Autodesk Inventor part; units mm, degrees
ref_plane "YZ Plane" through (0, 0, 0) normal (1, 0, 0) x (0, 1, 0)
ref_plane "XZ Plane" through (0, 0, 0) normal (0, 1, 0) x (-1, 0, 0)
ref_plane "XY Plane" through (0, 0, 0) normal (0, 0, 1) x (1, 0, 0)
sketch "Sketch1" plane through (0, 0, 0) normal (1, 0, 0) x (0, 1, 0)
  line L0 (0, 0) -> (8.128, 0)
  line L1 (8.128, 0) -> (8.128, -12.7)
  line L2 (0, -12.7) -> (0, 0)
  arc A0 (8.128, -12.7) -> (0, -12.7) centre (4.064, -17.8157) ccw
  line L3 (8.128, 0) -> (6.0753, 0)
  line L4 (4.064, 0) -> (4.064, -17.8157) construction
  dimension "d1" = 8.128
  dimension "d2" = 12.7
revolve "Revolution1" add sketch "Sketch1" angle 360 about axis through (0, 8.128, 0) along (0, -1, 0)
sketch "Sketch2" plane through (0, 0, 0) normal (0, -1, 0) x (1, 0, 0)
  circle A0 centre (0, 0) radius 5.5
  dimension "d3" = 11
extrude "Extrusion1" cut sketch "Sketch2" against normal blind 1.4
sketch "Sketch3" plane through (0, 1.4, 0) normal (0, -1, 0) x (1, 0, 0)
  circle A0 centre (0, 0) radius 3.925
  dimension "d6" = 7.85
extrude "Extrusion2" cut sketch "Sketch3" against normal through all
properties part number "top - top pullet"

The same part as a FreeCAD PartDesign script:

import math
import FreeCAD as App
import Part
import Sketcher
from FreeCAD import Vector

doc = App.newDocument("Part")
body = doc.addObject("PartDesign::Body", "Body")

# Sketch on YZ plane
sketch1 = doc.addObject("Sketcher::SketchObject", "Sketch")
body.addObject(sketch1)
sketch1.AttachmentSupport = (doc.YZ_Plane, [""])
sketch1.MapMode = "FlatFace"
sketch1.addGeometry([
    Part.LineSegment(Vector(8, 0, 0), Vector(0, 0, 0)),
    Part.LineSegment(Vector(0, 0, 0), Vector(0, -13, 0)),
    Part.ArcOfCircle(Part.Circle(Vector(4, -18, 0), Vector(0, 0, 1), 7), math.radians(52), math.radians(128)),
    Part.LineSegment(Vector(8, -13, 0), Vector(8, 0, 0)),
], False)
sketch1.addConstraint([
    Sketcher.Constraint("Coincident", 0, 2, 1, 1),
    Sketcher.Constraint("Coincident", 1, 2, 2, 2),
    Sketcher.Constraint("Coincident", 2, 1, 3, 1),
    Sketcher.Constraint("Coincident", 3, 2, 0, 1),
    Sketcher.Constraint("Horizontal", 0),
    Sketcher.Constraint("Vertical", 1),
    Sketcher.Constraint("Vertical", 3),
    Sketcher.Constraint("Coincident", 0, 2, -1, 1),
    Sketcher.Constraint("Horizontal", 1, 2, 2, 1),
    Sketcher.Constraint("DistanceY", 1, 2, 1, 1, 12.7),
    Sketcher.Constraint("DistanceX", 0, 2, 0, 1, 8.128),
    Sketcher.Constraint("Radius", 2, 6.5335),
])
revolution = doc.addObject("PartDesign::Revolution", "Revolution")
body.addObject(revolution)
revolution.Profile = sketch1
revolution.ReferenceAxis = (sketch1, ["H_Axis"])
revolution.Angle = 360

# Sketch on XZ plane
sketch2 = doc.addObject("Sketcher::SketchObject", "Sketch001")
body.addObject(sketch2)
sketch2.AttachmentSupport = (doc.XZ_Plane, [""])
sketch2.MapMode = "FlatFace"
sketch2.addGeometry(Part.Circle(Vector(0, 0, 0), Vector(0, 0, 1), 6), False)
sketch2.addConstraint([
    Sketcher.Constraint("Coincident", 0, 3, -1, 1),
    Sketcher.Constraint("Diameter", 0, 11.0),
])
pocket1 = doc.addObject("PartDesign::Pocket", "Pocket")
body.addObject(pocket1)
pocket1.Profile = sketch2
pocket1.Length = 1.4

# Sketch on XZ plane
sketch3 = doc.addObject("Sketcher::SketchObject", "Sketch002")
body.addObject(sketch3)
sketch3.AttachmentSupport = (doc.XZ_Plane, [""])
sketch3.MapMode = "FlatFace"
sketch3.AttachmentOffset = App.Placement(Vector(0, 0, -1.4), App.Rotation())
sketch3.addGeometry(Part.Circle(Vector(0, 0, 0), Vector(0, 0, 1), 3.9), False)
sketch3.addConstraint([
    Sketcher.Constraint("Coincident", 0, 3, -1, 1),
    Sketcher.Constraint("Diameter", 0, 7.85),
])
pocket2 = doc.addObject("PartDesign::Pocket", "Pocket001")
body.addObject(pocket2)
pocket2.Profile = sketch3
pocket2.Type = "ThroughAll"

doc.recompute()
